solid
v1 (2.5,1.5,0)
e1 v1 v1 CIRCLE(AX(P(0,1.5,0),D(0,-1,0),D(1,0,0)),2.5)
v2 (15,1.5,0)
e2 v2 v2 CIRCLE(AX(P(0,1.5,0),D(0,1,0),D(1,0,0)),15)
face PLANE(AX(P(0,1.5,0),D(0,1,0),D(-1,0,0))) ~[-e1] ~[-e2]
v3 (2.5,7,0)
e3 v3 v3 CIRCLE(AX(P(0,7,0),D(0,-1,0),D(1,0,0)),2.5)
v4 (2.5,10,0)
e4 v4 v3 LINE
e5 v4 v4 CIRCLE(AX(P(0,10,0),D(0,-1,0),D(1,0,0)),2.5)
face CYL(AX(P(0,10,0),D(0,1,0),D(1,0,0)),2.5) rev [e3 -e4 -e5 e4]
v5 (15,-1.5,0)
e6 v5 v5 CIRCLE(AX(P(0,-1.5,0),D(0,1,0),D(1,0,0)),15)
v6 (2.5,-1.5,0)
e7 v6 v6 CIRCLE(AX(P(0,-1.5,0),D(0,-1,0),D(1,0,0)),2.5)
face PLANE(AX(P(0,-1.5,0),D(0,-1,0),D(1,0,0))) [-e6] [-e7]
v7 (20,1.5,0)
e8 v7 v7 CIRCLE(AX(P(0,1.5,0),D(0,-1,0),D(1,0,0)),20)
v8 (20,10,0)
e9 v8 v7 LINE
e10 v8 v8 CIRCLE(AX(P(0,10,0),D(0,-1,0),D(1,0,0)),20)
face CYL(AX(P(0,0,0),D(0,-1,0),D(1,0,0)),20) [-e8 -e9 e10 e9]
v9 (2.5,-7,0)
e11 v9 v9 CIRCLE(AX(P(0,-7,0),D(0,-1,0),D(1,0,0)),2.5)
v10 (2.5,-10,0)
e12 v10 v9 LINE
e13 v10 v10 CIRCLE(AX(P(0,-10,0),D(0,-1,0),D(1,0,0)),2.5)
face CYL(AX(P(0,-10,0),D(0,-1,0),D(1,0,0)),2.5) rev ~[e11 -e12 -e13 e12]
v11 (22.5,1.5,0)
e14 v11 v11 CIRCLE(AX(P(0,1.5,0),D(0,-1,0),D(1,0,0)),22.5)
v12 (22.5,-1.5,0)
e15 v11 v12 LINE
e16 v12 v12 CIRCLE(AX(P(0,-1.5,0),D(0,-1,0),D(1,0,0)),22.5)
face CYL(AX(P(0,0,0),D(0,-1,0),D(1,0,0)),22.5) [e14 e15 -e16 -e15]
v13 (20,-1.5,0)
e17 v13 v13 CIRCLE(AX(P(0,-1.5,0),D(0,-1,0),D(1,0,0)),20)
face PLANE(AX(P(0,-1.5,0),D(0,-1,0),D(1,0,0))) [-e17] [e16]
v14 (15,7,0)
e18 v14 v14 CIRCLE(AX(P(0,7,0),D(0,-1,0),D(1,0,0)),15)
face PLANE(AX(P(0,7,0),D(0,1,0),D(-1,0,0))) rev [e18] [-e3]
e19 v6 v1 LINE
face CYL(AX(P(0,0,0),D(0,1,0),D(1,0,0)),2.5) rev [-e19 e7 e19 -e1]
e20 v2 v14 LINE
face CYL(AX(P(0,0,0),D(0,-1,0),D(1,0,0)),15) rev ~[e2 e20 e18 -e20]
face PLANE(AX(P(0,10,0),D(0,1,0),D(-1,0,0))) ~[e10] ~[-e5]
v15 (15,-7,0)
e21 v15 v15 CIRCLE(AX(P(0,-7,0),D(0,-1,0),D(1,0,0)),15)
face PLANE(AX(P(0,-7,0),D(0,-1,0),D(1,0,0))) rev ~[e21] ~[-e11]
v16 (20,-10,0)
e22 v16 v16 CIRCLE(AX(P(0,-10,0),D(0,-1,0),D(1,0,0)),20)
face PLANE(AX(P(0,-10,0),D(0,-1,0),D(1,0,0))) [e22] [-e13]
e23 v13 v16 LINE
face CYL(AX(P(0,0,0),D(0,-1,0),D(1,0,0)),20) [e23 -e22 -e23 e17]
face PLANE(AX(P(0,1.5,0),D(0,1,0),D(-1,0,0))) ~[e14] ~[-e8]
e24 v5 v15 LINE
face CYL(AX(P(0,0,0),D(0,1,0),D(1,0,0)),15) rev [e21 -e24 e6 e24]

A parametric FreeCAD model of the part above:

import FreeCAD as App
import Part
import Sketcher

V = App.Vector

doc = App.newDocument("Part")
body = doc.addObject("PartDesign::Body", "Body")

sketch1 = body.newObject("Sketcher::SketchObject", "Sketch")
sketch1.AttachmentSupport = (doc.getObject("XZ_Plane"), [""])
sketch1.MapMode = "FlatFace"
sketch1.addGeometry([
    Part.Circle(V(0, 0, 0), V(0, 0, 1), 20),
    Part.Circle(V(0, 0, 0), V(0, 0, 1), 15),
], False)
sketch1.addConstraint([
    Sketcher.Constraint("Coincident", 0, 3, -1, 1),
    Sketcher.Constraint("Coincident", 1, 3, -1, 1),
    Sketcher.Constraint("Diameter", 0, 40.0),
    Sketcher.Constraint("Diameter", 1, 30.0),
])
pad1 = body.newObject("PartDesign::Pad", "Pad")
pad1.Profile = sketch1
pad1.Length = 10
body2 = doc.addObject("PartDesign::Body", "Body001")
doc.recompute()

body2.BaseFeature = body
doc.recompute()

mirroring = doc.addObject("Part::Mirroring", "Mirroring")
mirroring.Source = body
mirroring.Base = V(0, 0, 0)
mirroring.Normal = V(0, -1, 0)
body3 = doc.addObject("PartDesign::Body", "Body002")
body3.BaseFeature = mirroring
boolean = body2.newObject("PartDesign::Boolean", "Boolean")
boolean.Type = "Fuse"
boolean.addObjects([body3])
doc.recompute()

sketch2 = body2.newObject("Sketcher::SketchObject", "Sketch001")
sketch2.AttachmentSupport = (doc.getObject("XZ_Plane001"), [""])
sketch2.MapMode = "FlatFace"
sketch2.addGeometry([
    Part.Circle(V(0, 0, 0), V(0, 0, 1), 22.5),
    Part.Circle(V(0, 0, 0), V(0, 0, 1), 2.5),
], False)
sketch2.addConstraint([
    Sketcher.Constraint("Coincident", 0, 3, -1, 1),
    Sketcher.Constraint("Coincident", 1, 3, -1, 1),
    Sketcher.Constraint("Diameter", 0, 45.0),
    Sketcher.Constraint("Diameter", 1, 5.0),
])
pad2 = body2.newObject("PartDesign::Pad", "Pad001")
pad2.Profile = sketch2
pad2.Length = 1.5
body4 = doc.addObject("PartDesign::Body", "Body003")
doc.recompute()

body4.BaseFeature = body2
doc.recompute()

mirroring2 = doc.addObject("Part::Mirroring", "Mirroring001")
mirroring2.Source = body2
mirroring2.Base = V(0, 0, 0)
mirroring2.Normal = V(0, -1, 0)
body5 = doc.addObject("PartDesign::Body", "Body004")
body5.BaseFeature = mirroring2
boolean2 = body4.newObject("PartDesign::Boolean", "Boolean001")
boolean2.Type = "Fuse"
boolean2.addObjects([body5])
doc.recompute()

sketch3 = body4.newObject("Sketcher::SketchObject", "Sketch002")
sketch3.AttachmentSupport = (doc.getObject("XZ_Plane003"), [""])
sketch3.MapMode = "FlatFace"
sketch3.AttachmentOffset = App.Placement(V(0, 0, 10), App.Rotation())
sketch3.addGeometry([
    Part.Circle(V(0, 0, 0), V(0, 0, 1), 15),
    Part.Circle(V(0, 0, 0), V(0, 0, 1), 2.5),
], False)
sketch3.addConstraint([
    Sketcher.Constraint("Coincident", 0, 3, -1, 1),
    Sketcher.Constraint("Coincident", 1, 3, -1, 1),
    Sketcher.Constraint("Diameter", 0, 30.0),
    Sketcher.Constraint("Diameter", 1, 5.0),
])
pad3 = body4.newObject("PartDesign::Pad", "Pad002")
pad3.Profile = sketch3
pad3.Length = 3
pad3.Reversed = True
body6 = doc.addObject("PartDesign::Body", "Body005")
doc.recompute()

body6.BaseFeature = body4
doc.recompute()

mirroring3 = doc.addObject("Part::Mirroring", "Mirroring002")
mirroring3.Source = body4
mirroring3.Base = V(0, 0, 0)
mirroring3.Normal = V(0, -1, 0)
body7 = doc.addObject("PartDesign::Body", "Body006")
body7.BaseFeature = mirroring3
boolean3 = body6.newObject("PartDesign::Boolean", "Boolean002")
boolean3.Type = "Fuse"
boolean3.addObjects([body7])
doc.recompute()
mirroring.Visibility = False
mirroring2.Visibility = False
mirroring3.Visibility = False

doc.recompute()
